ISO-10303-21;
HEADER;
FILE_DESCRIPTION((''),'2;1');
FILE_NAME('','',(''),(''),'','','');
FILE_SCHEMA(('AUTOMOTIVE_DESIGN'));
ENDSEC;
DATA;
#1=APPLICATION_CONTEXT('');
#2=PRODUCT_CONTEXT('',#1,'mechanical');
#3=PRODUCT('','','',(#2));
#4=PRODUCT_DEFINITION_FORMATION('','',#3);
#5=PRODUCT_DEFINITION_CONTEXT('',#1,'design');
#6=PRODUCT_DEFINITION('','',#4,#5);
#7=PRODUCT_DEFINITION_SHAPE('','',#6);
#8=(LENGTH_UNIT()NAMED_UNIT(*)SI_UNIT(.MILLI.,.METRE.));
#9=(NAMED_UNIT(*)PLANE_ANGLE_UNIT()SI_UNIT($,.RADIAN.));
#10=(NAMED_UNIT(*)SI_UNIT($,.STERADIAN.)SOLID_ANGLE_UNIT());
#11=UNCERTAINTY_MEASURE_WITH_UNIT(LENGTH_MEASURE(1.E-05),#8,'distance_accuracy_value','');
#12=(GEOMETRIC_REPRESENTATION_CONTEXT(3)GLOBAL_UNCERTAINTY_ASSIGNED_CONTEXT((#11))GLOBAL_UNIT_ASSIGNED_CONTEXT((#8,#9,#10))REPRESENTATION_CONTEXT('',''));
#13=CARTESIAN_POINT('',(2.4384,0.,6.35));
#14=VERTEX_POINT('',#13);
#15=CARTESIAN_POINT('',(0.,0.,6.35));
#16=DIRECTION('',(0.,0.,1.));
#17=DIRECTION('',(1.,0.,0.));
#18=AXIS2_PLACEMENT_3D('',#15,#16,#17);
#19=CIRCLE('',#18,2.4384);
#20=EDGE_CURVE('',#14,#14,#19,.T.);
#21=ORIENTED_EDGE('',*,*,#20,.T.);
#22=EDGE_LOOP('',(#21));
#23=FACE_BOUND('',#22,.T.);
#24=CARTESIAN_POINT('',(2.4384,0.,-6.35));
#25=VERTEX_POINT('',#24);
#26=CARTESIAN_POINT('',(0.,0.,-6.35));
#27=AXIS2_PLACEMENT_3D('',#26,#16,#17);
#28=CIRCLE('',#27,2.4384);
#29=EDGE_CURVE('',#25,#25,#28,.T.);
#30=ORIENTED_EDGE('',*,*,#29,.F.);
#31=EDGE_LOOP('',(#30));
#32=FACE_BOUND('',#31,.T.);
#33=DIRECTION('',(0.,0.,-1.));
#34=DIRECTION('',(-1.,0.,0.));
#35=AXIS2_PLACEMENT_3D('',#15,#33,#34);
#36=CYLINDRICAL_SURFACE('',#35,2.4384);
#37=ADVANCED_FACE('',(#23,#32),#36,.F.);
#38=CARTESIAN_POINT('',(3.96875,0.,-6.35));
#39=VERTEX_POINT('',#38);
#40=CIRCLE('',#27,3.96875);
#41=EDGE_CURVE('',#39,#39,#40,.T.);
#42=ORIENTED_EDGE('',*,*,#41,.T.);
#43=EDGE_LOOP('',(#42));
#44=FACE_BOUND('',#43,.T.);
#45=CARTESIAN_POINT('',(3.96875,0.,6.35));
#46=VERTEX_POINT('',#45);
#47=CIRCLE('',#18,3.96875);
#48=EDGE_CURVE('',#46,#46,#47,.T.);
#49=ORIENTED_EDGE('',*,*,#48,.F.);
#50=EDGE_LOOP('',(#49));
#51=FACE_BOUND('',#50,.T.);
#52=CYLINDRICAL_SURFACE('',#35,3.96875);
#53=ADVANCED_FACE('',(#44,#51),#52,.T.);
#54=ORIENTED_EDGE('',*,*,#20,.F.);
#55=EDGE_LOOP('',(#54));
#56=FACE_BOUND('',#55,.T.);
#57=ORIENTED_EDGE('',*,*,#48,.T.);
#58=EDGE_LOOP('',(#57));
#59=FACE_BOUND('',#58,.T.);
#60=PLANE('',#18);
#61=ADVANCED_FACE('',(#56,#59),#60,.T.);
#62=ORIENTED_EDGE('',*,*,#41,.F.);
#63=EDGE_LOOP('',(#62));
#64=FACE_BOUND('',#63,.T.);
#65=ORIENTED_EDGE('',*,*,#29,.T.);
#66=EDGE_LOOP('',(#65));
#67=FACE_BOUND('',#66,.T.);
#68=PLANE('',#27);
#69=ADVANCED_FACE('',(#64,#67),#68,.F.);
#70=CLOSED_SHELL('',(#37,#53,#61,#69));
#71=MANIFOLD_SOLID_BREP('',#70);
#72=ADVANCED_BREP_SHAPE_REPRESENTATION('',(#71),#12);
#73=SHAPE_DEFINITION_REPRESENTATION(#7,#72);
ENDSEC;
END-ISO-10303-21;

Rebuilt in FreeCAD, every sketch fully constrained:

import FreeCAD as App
import Part
import Sketcher

V = App.Vector
Q = App.Units.Quantity

doc = App.newDocument("Part")
params = doc.addObject("Spreadsheet::Sheet", "Params")
for row, (alias, value) in enumerate([
    ("sketch1_diameter", "0.3125 in"),
    ("sketch1_diameter2", "0.192 in"),
    ("pad1_length", "0.25 in"),
    ("pad1_length2", "0.25 in"),
], start=1):
    params.set(f"A{row}", alias)
    params.set(f"B{row}", "=" + value)
    params.setAlias(f"B{row}", alias)

body = doc.addObject("PartDesign::Body", "Body")

sketch1 = body.newObject("Sketcher::SketchObject", "Sketch")
sketch1.AttachmentSupport = (doc.getObject("XY_Plane"), [""])
sketch1.MapMode = "FlatFace"
sketch1.addGeometry([
    Part.Circle(V(0, 0, 0), V(0, 0, 1), 4),
    Part.Circle(V(0, 0, 0), V(0, 0, 1), 2.4),
], False)
sketch1.addConstraint([
    Sketcher.Constraint("Coincident", 0, 3, -1, 1),
    Sketcher.Constraint("Coincident", 1, 3, -1, 1),
    Sketcher.Constraint("Diameter", 0, Q("0.3125 in")),
    Sketcher.Constraint("Diameter", 1, Q("0.192 in")),
])
sketch1.setExpression("Constraints[2]", "Params.sketch1_diameter")
sketch1.setExpression("Constraints[3]", "Params.sketch1_diameter2")
pad1 = body.newObject("PartDesign::Pad", "Pad")
pad1.Profile = sketch1
pad1.Type = "TwoLengths"
pad1.setExpression("Length", "Params.pad1_length")
pad1.setExpression("Length2", "Params.pad1_length2")

doc.recompute()
